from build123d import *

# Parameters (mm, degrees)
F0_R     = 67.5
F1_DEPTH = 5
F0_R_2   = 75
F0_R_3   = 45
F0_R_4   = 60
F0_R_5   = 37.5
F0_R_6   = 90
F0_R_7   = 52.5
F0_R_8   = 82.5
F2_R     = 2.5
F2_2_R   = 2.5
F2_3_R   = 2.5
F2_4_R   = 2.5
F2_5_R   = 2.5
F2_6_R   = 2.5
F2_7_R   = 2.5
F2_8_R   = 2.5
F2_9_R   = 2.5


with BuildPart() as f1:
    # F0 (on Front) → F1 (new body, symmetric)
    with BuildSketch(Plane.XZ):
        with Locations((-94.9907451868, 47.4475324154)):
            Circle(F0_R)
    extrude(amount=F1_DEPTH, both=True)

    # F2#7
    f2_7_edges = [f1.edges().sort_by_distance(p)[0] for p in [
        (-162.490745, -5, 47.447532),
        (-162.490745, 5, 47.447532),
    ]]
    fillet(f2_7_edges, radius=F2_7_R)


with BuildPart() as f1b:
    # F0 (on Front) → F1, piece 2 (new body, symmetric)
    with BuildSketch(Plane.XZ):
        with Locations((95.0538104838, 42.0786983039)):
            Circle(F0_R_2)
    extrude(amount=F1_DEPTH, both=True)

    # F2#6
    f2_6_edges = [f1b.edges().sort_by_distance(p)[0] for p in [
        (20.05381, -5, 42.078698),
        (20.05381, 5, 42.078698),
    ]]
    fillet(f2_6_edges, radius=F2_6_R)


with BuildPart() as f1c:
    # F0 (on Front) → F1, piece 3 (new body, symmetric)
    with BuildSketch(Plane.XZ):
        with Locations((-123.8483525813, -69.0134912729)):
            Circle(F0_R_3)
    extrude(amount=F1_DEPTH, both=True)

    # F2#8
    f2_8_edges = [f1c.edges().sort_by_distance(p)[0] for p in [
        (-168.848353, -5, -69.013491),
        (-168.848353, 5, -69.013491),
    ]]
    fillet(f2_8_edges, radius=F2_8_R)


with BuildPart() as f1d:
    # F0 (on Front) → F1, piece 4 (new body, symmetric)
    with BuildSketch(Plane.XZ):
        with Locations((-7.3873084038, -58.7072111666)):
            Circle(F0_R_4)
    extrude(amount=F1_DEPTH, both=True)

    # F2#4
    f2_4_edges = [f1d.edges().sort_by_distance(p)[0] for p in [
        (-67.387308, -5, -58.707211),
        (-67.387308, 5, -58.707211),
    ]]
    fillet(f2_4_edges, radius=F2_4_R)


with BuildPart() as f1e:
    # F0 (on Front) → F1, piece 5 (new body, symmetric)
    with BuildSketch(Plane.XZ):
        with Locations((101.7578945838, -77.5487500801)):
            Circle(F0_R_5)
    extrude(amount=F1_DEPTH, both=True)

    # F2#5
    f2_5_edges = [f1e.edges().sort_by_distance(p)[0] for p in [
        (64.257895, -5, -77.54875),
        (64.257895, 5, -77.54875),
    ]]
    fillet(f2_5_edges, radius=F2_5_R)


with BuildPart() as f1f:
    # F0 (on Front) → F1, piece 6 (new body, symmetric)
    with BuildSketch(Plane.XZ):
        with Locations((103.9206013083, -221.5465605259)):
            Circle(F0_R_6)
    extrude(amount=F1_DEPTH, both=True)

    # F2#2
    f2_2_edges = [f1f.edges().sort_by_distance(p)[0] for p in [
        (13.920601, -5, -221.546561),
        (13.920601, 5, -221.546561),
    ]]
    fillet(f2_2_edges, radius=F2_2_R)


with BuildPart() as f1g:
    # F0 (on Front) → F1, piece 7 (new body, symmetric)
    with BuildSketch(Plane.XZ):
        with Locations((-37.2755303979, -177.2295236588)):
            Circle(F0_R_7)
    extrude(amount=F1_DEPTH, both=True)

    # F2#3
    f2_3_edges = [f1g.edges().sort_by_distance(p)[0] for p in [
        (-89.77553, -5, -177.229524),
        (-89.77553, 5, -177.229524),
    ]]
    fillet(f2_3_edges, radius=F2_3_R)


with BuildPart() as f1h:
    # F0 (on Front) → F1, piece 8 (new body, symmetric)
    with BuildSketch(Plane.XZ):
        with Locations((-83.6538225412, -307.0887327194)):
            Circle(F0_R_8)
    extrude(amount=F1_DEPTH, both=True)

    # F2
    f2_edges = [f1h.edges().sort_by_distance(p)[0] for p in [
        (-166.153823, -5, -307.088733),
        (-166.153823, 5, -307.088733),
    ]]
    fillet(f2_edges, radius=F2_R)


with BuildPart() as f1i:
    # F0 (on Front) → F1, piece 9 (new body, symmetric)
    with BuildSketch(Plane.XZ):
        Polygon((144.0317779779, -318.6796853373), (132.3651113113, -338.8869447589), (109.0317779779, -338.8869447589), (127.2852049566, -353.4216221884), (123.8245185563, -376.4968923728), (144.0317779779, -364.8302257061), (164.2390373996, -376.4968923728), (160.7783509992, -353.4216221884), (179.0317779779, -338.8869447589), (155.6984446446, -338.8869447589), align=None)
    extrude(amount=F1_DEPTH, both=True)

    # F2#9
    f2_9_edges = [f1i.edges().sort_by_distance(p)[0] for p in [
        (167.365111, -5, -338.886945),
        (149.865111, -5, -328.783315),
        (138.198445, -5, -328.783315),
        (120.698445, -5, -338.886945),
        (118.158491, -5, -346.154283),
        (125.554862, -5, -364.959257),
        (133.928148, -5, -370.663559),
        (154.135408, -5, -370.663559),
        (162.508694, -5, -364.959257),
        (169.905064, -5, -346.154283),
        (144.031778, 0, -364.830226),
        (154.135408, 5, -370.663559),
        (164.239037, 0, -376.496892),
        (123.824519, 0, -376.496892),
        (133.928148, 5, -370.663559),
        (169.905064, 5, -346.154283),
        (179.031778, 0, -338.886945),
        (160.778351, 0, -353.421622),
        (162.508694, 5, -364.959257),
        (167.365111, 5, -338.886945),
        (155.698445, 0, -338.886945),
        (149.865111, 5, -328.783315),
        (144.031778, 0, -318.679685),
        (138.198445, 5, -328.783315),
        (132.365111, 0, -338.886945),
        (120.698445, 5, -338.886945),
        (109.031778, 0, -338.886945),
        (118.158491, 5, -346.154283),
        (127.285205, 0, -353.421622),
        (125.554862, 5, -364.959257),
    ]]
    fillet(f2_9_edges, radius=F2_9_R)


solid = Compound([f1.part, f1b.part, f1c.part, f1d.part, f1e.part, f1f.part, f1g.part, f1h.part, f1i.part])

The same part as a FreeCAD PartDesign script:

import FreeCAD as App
import Part
import Sketcher
from FreeCAD import Vector
Q = App.Units.Quantity


def edges_at(feature, points):
    """Names of the edges that pass closest to the given points."""
    edges = feature.Shape.Edges
    near = lambda p: min(range(len(edges)), key=lambda i: edges[i].distToShape(Part.Vertex(*p))[0])
    return sorted({f"Edge{near(p) + 1}" for p in points})

doc = App.newDocument("Part")
params = doc.addObject("Spreadsheet::Sheet", "Params")
for row, (alias, value) in enumerate([
    ("sketch1_diameter", "135 mm"),
    ("pad1_length", "10 mm"),
    ("fillet_radius", "2.5 mm"),
    ("sketch2_diameter", "150 mm"),
    ("pad2_length", "10 mm"),
    ("fillet2_radius", "2.5 mm"),
    ("sketch3_diameter", "90 mm"),
    ("pad3_length", "10 mm"),
    ("fillet3_radius", "2.5 mm"),
    ("sketch4_diameter", "120 mm"),
    ("pad4_length", "10 mm"),
    ("fillet4_radius", "2.5 mm"),
    ("sketch5_diameter", "75 mm"),
    ("pad5_length", "10 mm"),
    ("fillet5_radius", "2.5 mm"),
    ("sketch6_diameter", "180 mm"),
    ("pad6_length", "10 mm"),
    ("fillet6_radius", "2.5 mm"),
    ("sketch7_diameter", "105 mm"),
    ("pad7_length", "10 mm"),
    ("fillet7_radius", "2.5 mm"),
    ("sketch8_diameter", "165 mm"),
    ("pad8_length", "10 mm"),
    ("fillet8_radius", "2.5 mm"),
    ("pad9_length", "10 mm"),
    ("fillet9_radius", "2.5 mm"),
], start=1):
    params.set(f"A{row}", alias)
    params.set(f"B{row}", "=" + value)
    params.setAlias(f"B{row}", alias)

body = doc.addObject("PartDesign::Body", "Body")

sketch1 = doc.addObject("Sketcher::SketchObject", "Sketch")
body.addObject(sketch1)
sketch1.AttachmentSupport = (doc.XZ_Plane, [""])
sketch1.MapMode = "FlatFace"
sketch1.addGeometry(Part.Circle(Vector(-94.990745, 47.447532, 0), Vector(0, 0, 1), 67.5), False)
sketch1.addConstraint([
    Sketcher.Constraint("Diameter", 0, 135.0),
    Sketcher.Constraint("DistanceX", 0, 3, -1, 1, 94.990745),
    Sketcher.Constraint("DistanceY", -1, 1, 0, 3, 47.447532),
])
sketch1.setExpression("Constraints[0]", "Params.sketch1_diameter")
pad1 = doc.addObject("PartDesign::Pad", "Pad")
body.addObject(pad1)
pad1.Profile = sketch1
pad1.setExpression("Length", "Params.pad1_length")
pad1.Midplane = True
doc.recompute()

fillet = doc.addObject("PartDesign::Fillet", "Fillet")
body.addObject(fillet)
fillet.Base = (pad1, edges_at(pad1, [(-162.491, -5, 47.448), (-162.491, 5, 47.448)]))
fillet.setExpression("Radius", "Params.fillet_radius")
body2 = doc.addObject("PartDesign::Body", "Body001")

sketch2 = doc.addObject("Sketcher::SketchObject", "Sketch001")
body2.addObject(sketch2)
sketch2.AttachmentSupport = (doc.getObject("XZ_Plane001"), [""])
sketch2.MapMode = "FlatFace"
sketch2.addGeometry(Part.Circle(Vector(95.05381, 42.078698, 0), Vector(0, 0, 1), 75), False)
sketch2.addConstraint([
    Sketcher.Constraint("Diameter", 0, 150.0),
    Sketcher.Constraint("DistanceY", -1, 1, 0, 3, 42.078698),
    Sketcher.Constraint("DistanceX", -1, 1, 0, 3, 95.05381),
])
sketch2.setExpression("Constraints[0]", "Params.sketch2_diameter")
pad2 = doc.addObject("PartDesign::Pad", "Pad001")
body2.addObject(pad2)
pad2.Profile = sketch2
pad2.setExpression("Length", "Params.pad2_length")
pad2.Midplane = True
doc.recompute()

fillet2 = doc.addObject("PartDesign::Fillet", "Fillet001")
body2.addObject(fillet2)
fillet2.Base = (pad2, edges_at(pad2, [(20.054, -5, 42.079), (20.054, 5, 42.079)]))
fillet2.setExpression("Radius", "Params.fillet2_radius")
body3 = doc.addObject("PartDesign::Body", "Body002")

sketch3 = doc.addObject("Sketcher::SketchObject", "Sketch002")
body3.addObject(sketch3)
sketch3.AttachmentSupport = (doc.getObject("XZ_Plane002"), [""])
sketch3.MapMode = "FlatFace"
sketch3.addGeometry(Part.Circle(Vector(-123.848353, -69.013491, 0), Vector(0, 0, 1), 45), False)
sketch3.addConstraint([
    Sketcher.Constraint("Diameter", 0, 90.0),
    Sketcher.Constraint("DistanceY", 0, 3, -1, 1, 69.013491),
    Sketcher.Constraint("DistanceX", 0, 3, -1, 1, 123.848353),
])
sketch3.setExpression("Constraints[0]", "Params.sketch3_diameter")
pad3 = doc.addObject("PartDesign::Pad", "Pad002")
body3.addObject(pad3)
pad3.Profile = sketch3
pad3.setExpression("Length", "Params.pad3_length")
pad3.Midplane = True
doc.recompute()

fillet3 = doc.addObject("PartDesign::Fillet", "Fillet002")
body3.addObject(fillet3)
fillet3.Base = (pad3, edges_at(pad3, [(-168.848, -5, -69.013), (-168.848, 5, -69.013)]))
fillet3.setExpression("Radius", "Params.fillet3_radius")
body4 = doc.addObject("PartDesign::Body", "Body003")

sketch4 = doc.addObject("Sketcher::SketchObject", "Sketch003")
body4.addObject(sketch4)
sketch4.AttachmentSupport = (doc.getObject("XZ_Plane003"), [""])
sketch4.MapMode = "FlatFace"
sketch4.addGeometry(Part.Circle(Vector(-7.387308, -58.707211, 0), Vector(0, 0, 1), 60), False)
sketch4.addConstraint([
    Sketcher.Constraint("Diameter", 0, 120.0),
    Sketcher.Constraint("DistanceX", 0, 3, -1, 1, 7.387308),
    Sketcher.Constraint("DistanceY", 0, 3, -1, 1, 58.707211),
])
sketch4.setExpression("Constraints[0]", "Params.sketch4_diameter")
pad4 = doc.addObject("PartDesign::Pad", "Pad003")
body4.addObject(pad4)
pad4.Profile = sketch4
pad4.setExpression("Length", "Params.pad4_length")
pad4.Midplane = True
doc.recompute()

fillet4 = doc.addObject("PartDesign::Fillet", "Fillet003")
body4.addObject(fillet4)
fillet4.Base = (pad4, edges_at(pad4, [(-67.387, -5, -58.707), (-67.387, 5, -58.707)]))
fillet4.setExpression("Radius", "Params.fillet4_radius")
body5 = doc.addObject("PartDesign::Body", "Body004")

sketch5 = doc.addObject("Sketcher::SketchObject", "Sketch004")
body5.addObject(sketch5)
sketch5.AttachmentSupport = (doc.getObject("XZ_Plane004"), [""])
sketch5.MapMode = "FlatFace"
sketch5.addGeometry(Part.Circle(Vector(101.757895, -77.54875, 0), Vector(0, 0, 1), 37.5), False)
sketch5.addConstraint([
    Sketcher.Constraint("Diameter", 0, 75.0),
    Sketcher.Constraint("DistanceY", 0, 3, -1, 1, 77.54875),
    Sketcher.Constraint("DistanceX", -1, 1, 0, 3, 101.757895),
])
sketch5.setExpression("Constraints[0]", "Params.sketch5_diameter")
pad5 = doc.addObject("PartDesign::Pad", "Pad004")
body5.addObject(pad5)
pad5.Profile = sketch5
pad5.setExpression("Length", "Params.pad5_length")
pad5.Midplane = True
doc.recompute()

fillet5 = doc.addObject("PartDesign::Fillet", "Fillet004")
body5.addObject(fillet5)
fillet5.Base = (pad5, edges_at(pad5, [(64.258, -5, -77.549), (64.258, 5, -77.549)]))
fillet5.setExpression("Radius", "Params.fillet5_radius")
body6 = doc.addObject("PartDesign::Body", "Body005")

sketch6 = doc.addObject("Sketcher::SketchObject", "Sketch005")
body6.addObject(sketch6)
sketch6.AttachmentSupport = (doc.getObject("XZ_Plane005"), [""])
sketch6.MapMode = "FlatFace"
sketch6.addGeometry(Part.Circle(Vector(103.920601, -221.546561, 0), Vector(0, 0, 1), 90), False)
sketch6.addConstraint([
    Sketcher.Constraint("Diameter", 0, 180.0),
    Sketcher.Constraint("DistanceX", -1, 1, 0, 3, 103.920601),
    Sketcher.Constraint("DistanceY", 0, 3, -1, 1, 221.546561),
])
sketch6.setExpression("Constraints[0]", "Params.sketch6_diameter")
pad6 = doc.addObject("PartDesign::Pad", "Pad005")
body6.addObject(pad6)
pad6.Profile = sketch6
pad6.setExpression("Length", "Params.pad6_length")
pad6.Midplane = True
doc.recompute()

fillet6 = doc.addObject("PartDesign::Fillet", "Fillet005")
body6.addObject(fillet6)
fillet6.Base = (pad6, edges_at(pad6, [(13.921, -5, -221.547), (13.921, 5, -221.547)]))
fillet6.setExpression("Radius", "Params.fillet6_radius")
body7 = doc.addObject("PartDesign::Body", "Body006")

sketch7 = doc.addObject("Sketcher::SketchObject", "Sketch006")
body7.addObject(sketch7)
sketch7.AttachmentSupport = (doc.getObject("XZ_Plane006"), [""])
sketch7.MapMode = "FlatFace"
sketch7.addGeometry(Part.Circle(Vector(-37.27553, -177.229524, 0), Vector(0, 0, 1), 52.5), False)
sketch7.addConstraint([
    Sketcher.Constraint("Diameter", 0, 105.0),
    Sketcher.Constraint("DistanceX", 0, 3, -1, 1, 37.27553),
    Sketcher.Constraint("DistanceY", 0, 3, -1, 1, 177.229524),
])
sketch7.setExpression("Constraints[0]", "Params.sketch7_diameter")
pad7 = doc.addObject("PartDesign::Pad", "Pad006")
body7.addObject(pad7)
pad7.Profile = sketch7
pad7.setExpression("Length", "Params.pad7_length")
pad7.Midplane = True
doc.recompute()

fillet7 = doc.addObject("PartDesign::Fillet", "Fillet006")
body7.addObject(fillet7)
fillet7.Base = (pad7, edges_at(pad7, [(-89.776, -5, -177.23), (-89.776, 5, -177.23)]))
fillet7.setExpression("Radius", "Params.fillet7_radius")
body8 = doc.addObject("PartDesign::Body", "Body007")

sketch8 = doc.addObject("Sketcher::SketchObject", "Sketch007")
body8.addObject(sketch8)
sketch8.AttachmentSupport = (doc.getObject("XZ_Plane007"), [""])
sketch8.MapMode = "FlatFace"
sketch8.addGeometry(Part.Circle(Vector(-83.653823, -307.088733, 0), Vector(0, 0, 1), 82.5), False)
sketch8.addConstraint([
    Sketcher.Constraint("Diameter", 0, 165.0),
    Sketcher.Constraint("DistanceX", 0, 3, -1, 1, 83.653823),
    Sketcher.Constraint("DistanceY", 0, 3, -1, 1, 307.088733),
])
sketch8.setExpression("Constraints[0]", "Params.sketch8_diameter")
pad8 = doc.addObject("PartDesign::Pad", "Pad007")
body8.addObject(pad8)
pad8.Profile = sketch8
pad8.setExpression("Length", "Params.pad8_length")
pad8.Midplane = True
doc.recompute()

fillet8 = doc.addObject("PartDesign::Fillet", "Fillet007")
body8.addObject(fillet8)
fillet8.Base = (pad8, edges_at(pad8, [(-166.154, -5, -307.089), (-166.154, 5, -307.089)]))
fillet8.setExpression("Radius", "Params.fillet8_radius")
body9 = doc.addObject("PartDesign::Body", "Body008")

sketch9 = doc.addObject("Sketcher::SketchObject", "Sketch008")
body9.addObject(sketch9)
sketch9.AttachmentSupport = (doc.getObject("XZ_Plane008"), [""])
sketch9.MapMode = "FlatFace"
sketch9.addGeometry([
    Part.LineSegment(Vector(144.031778, -318.679685, 0), Vector(132.365111, -338.886945, 0)),
    Part.LineSegment(Vector(132.365111, -338.886945, 0), Vector(109.031778, -338.886945, 0)),
    Part.LineSegment(Vector(109.031778, -338.886945, 0), Vector(127.285205, -353.421622, 0)),
    Part.LineSegment(Vector(127.285205, -353.421622, 0), Vector(123.824519, -376.496892, 0)),
    Part.LineSegment(Vector(123.824519, -376.496892, 0), Vector(144.031778, -364.830226, 0)),
    Part.LineSegment(Vector(144.031778, -364.830226, 0), Vector(164.239037, -376.496892, 0)),
    Part.LineSegment(Vector(164.239037, -376.496892, 0), Vector(160.778351, -353.421622, 0)),
    Part.LineSegment(Vector(160.778351, -353.421622, 0), Vector(179.031778, -338.886945, 0)),
    Part.LineSegment(Vector(179.031778, -338.886945, 0), Vector(155.698445, -338.886945, 0)),
    Part.LineSegment(Vector(155.698445, -338.886945, 0), Vector(144.031778, -318.679685, 0)),
], False)
sketch9.addConstraint([
    Sketcher.Constraint("Coincident", 0, 2, 1, 1),
    Sketcher.Constraint("Coincident", 1, 2, 2, 1),
    Sketcher.Constraint("Coincident", 2, 2, 3, 1),
    Sketcher.Constraint("Coincident", 3, 2, 4, 1),
    Sketcher.Constraint("Coincident", 4, 2, 5, 1),
    Sketcher.Constraint("Coincident", 5, 2, 6, 1),
    Sketcher.Constraint("Coincident", 6, 2, 7, 1),
    Sketcher.Constraint("Coincident", 7, 2, 8, 1),
    Sketcher.Constraint("Coincident", 8, 2, 9, 1),
    Sketcher.Constraint("Coincident", 9, 2, 0, 1),
    Sketcher.Constraint("Horizontal", 1),
    Sketcher.Constraint("Horizontal", 8),
    Sketcher.Constraint("Perpendicular", 0, 5),
    Sketcher.Constraint("Perpendicular", 4, 9),
    Sketcher.Constraint("Horizontal", 3, 2, 5, 2),
    Sketcher.Constraint("Horizontal", 2, 2, 6, 2),
    Sketcher.Constraint("Horizontal", 1, 2, 7, 2),
    Sketcher.Constraint("Vertical", 4, 2, 9, 2),
    Sketcher.Constraint("Equal", 1, 8),
    Sketcher.Constraint("Equal", 0, 2),
    Sketcher.Constraint("Equal", 2, 3),
    Sketcher.Constraint("Equal", 3, 4),
    Sketcher.Constraint("Equal", 4, 5),
    Sketcher.Constraint("Equal", 5, 6),
    Sketcher.Constraint("Angle", 0, Q("-120 deg")),
    Sketcher.Constraint("DistanceX", 1, 2, 4, 2, 35.0),
    Sketcher.Constraint("DistanceX", 1, 2, 1, 1, 23.333333),
    Sketcher.Constraint("DistanceX", -1, 1, 0, 2, 132.365111),
    Sketcher.Constraint("DistanceX", -1, 1, 6, 2, 160.778351),
    Sketcher.Constraint("DistanceY", 0, 2, -1, 1, 338.886945),
])
pad9 = doc.addObject("PartDesign::Pad", "Pad008")
body9.addObject(pad9)
pad9.Profile = sketch9
pad9.setExpression("Length", "Params.pad9_length")
pad9.Midplane = True
doc.recompute()

fillet9 = doc.addObject("PartDesign::Fillet", "Fillet008")
body9.addObject(fillet9)
fillet9.Base = (pad9, ["Edge1"])
fillet9.UseAllEdges = True
fillet9.setExpression("Radius", "Params.fillet9_radius")

doc.recompute()
